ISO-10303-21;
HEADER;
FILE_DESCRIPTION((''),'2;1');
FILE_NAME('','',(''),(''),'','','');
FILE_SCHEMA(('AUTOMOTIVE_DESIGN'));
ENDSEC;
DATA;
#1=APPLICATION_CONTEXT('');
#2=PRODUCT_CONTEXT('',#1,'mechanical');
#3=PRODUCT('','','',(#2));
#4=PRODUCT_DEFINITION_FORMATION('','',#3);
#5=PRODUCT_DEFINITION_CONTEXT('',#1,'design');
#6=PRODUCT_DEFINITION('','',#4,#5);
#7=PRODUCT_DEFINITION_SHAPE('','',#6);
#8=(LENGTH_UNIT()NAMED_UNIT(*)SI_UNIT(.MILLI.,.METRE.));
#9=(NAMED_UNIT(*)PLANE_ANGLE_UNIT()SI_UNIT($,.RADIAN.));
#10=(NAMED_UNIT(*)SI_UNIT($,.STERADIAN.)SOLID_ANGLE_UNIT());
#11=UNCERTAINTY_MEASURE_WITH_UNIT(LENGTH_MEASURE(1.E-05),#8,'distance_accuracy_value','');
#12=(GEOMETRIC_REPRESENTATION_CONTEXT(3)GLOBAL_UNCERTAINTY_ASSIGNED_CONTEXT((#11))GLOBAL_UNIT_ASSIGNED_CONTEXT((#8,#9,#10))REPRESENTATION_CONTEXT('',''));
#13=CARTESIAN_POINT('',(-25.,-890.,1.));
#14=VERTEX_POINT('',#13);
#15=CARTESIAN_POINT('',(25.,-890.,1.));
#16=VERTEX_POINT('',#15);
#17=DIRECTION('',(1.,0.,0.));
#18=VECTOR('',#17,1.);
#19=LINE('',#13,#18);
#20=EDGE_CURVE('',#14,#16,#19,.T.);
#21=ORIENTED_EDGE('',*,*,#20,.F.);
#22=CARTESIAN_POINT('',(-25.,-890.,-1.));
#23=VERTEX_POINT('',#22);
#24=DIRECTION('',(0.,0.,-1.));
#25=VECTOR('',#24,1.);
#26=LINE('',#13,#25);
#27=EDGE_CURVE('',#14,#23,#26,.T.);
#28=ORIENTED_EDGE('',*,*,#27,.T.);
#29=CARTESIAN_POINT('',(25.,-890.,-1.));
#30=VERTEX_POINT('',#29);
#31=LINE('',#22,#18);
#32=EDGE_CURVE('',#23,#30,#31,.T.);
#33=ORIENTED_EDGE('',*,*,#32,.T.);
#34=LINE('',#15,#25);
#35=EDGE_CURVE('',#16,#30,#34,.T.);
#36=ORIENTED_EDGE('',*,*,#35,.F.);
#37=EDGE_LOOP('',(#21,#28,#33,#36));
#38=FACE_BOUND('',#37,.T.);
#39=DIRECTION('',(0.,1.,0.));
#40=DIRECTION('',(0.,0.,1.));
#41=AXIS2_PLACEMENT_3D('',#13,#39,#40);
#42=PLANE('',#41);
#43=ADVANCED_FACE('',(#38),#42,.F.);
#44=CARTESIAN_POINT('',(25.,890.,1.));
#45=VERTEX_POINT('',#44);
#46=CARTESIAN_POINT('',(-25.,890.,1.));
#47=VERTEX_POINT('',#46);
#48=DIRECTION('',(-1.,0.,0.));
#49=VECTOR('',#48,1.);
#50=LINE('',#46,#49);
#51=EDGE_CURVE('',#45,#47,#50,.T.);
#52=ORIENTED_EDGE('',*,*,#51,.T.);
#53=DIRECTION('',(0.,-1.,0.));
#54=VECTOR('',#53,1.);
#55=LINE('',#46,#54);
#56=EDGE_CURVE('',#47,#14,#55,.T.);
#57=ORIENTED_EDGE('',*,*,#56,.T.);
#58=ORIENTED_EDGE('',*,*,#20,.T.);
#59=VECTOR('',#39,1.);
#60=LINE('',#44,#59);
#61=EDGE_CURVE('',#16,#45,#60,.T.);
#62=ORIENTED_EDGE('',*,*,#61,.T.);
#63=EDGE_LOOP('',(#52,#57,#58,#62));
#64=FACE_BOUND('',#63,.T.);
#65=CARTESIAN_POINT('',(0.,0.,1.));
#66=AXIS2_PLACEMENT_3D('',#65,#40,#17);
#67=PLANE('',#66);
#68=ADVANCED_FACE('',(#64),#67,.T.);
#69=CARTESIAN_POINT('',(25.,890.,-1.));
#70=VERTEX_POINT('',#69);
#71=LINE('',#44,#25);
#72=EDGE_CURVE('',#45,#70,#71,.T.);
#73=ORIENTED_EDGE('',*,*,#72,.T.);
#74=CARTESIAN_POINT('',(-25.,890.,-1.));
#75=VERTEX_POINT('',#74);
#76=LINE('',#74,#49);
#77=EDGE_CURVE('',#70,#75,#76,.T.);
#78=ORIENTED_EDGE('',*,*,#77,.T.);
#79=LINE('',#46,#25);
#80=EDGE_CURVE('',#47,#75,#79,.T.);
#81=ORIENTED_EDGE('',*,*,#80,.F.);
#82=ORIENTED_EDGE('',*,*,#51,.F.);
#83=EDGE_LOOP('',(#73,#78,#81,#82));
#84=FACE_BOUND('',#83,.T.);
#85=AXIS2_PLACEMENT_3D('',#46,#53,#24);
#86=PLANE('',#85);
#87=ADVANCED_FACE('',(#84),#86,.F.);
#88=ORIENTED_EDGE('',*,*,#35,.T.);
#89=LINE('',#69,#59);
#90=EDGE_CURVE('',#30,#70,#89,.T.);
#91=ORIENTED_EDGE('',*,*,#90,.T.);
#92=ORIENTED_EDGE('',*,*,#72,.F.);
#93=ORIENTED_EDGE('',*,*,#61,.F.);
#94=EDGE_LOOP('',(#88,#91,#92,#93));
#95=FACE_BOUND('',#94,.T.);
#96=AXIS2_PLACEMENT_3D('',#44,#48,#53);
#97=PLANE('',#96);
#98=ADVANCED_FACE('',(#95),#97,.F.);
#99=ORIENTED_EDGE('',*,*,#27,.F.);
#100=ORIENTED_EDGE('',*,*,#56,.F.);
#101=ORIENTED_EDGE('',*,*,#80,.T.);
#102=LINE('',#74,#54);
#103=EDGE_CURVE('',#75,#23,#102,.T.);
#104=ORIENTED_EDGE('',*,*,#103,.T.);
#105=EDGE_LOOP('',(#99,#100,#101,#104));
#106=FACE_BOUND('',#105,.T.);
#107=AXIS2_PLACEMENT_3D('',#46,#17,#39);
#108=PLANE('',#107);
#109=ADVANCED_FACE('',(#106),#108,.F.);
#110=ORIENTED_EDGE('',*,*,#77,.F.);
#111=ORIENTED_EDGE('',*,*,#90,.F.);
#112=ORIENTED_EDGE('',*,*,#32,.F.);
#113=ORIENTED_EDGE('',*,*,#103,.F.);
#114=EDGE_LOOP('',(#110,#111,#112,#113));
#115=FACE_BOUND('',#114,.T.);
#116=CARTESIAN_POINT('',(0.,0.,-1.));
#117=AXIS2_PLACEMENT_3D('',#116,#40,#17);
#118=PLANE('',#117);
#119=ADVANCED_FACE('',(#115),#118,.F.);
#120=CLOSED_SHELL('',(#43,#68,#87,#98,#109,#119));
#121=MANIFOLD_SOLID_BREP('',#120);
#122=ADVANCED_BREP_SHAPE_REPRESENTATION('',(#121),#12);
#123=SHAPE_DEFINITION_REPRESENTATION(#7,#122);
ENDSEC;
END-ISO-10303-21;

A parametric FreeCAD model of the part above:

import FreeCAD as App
import Part
import Sketcher


def add_polygon(sketch, points):
    """Adds a closed chain of lines whose ends are joined by coincident constraints."""
    first, n = sketch.GeometryCount, len(points)
    for a, b in zip(points, points[1:] + points[:1]):
        sketch.addGeometry(Part.LineSegment(App.Vector(*a, 0), App.Vector(*b, 0)), False)
    for i in range(n):
        sketch.addConstraint(Sketcher.Constraint("Coincident", first + i, 2, first + (i + 1) % n, 1))

doc = App.newDocument("Part")
params = doc.addObject("Spreadsheet::Sheet", "Params")
for row, (alias, value) in enumerate([
    ("sketch1_width", "50 mm"),
    ("sketch1_height", "1780 mm"),
    ("pad1_length", "2 mm"),
], start=1):
    params.set(f"A{row}", alias)
    params.set(f"B{row}", "=" + value)
    params.setAlias(f"B{row}", alias)

body = doc.addObject("PartDesign::Body", "Body")

sketch1 = body.newObject("Sketcher::SketchObject", "Sketch")
sketch1.AttachmentSupport = (doc.getObject("XY_Plane"), [""])
sketch1.MapMode = "FlatFace"
add_polygon(sketch1, [(-25, 890), (-25, -890), (25, -890), (25, 890)])
sketch1.addConstraint([
    Sketcher.Constraint("Vertical", 0),
    Sketcher.Constraint("Horizontal", 1),
    Sketcher.Constraint("Vertical", 2),
    Sketcher.Constraint("Horizontal", 3),
    Sketcher.Constraint("Symmetric", 0, 2, 2, 2, -1, 1),
    Sketcher.Constraint("DistanceX", 1, 1, 1, 2, 50.0),
    Sketcher.Constraint("DistanceY", 0, 2, 0, 1, 1780.0),
])
sketch1.setExpression("Constraints[9]", "Params.sketch1_width")
sketch1.setExpression("Constraints[10]", "Params.sketch1_height")
pad1 = body.newObject("PartDesign::Pad", "Pad")
pad1.Profile = sketch1
pad1.setExpression("Length", "Params.pad1_length")
pad1.Midplane = True

doc.recompute()
